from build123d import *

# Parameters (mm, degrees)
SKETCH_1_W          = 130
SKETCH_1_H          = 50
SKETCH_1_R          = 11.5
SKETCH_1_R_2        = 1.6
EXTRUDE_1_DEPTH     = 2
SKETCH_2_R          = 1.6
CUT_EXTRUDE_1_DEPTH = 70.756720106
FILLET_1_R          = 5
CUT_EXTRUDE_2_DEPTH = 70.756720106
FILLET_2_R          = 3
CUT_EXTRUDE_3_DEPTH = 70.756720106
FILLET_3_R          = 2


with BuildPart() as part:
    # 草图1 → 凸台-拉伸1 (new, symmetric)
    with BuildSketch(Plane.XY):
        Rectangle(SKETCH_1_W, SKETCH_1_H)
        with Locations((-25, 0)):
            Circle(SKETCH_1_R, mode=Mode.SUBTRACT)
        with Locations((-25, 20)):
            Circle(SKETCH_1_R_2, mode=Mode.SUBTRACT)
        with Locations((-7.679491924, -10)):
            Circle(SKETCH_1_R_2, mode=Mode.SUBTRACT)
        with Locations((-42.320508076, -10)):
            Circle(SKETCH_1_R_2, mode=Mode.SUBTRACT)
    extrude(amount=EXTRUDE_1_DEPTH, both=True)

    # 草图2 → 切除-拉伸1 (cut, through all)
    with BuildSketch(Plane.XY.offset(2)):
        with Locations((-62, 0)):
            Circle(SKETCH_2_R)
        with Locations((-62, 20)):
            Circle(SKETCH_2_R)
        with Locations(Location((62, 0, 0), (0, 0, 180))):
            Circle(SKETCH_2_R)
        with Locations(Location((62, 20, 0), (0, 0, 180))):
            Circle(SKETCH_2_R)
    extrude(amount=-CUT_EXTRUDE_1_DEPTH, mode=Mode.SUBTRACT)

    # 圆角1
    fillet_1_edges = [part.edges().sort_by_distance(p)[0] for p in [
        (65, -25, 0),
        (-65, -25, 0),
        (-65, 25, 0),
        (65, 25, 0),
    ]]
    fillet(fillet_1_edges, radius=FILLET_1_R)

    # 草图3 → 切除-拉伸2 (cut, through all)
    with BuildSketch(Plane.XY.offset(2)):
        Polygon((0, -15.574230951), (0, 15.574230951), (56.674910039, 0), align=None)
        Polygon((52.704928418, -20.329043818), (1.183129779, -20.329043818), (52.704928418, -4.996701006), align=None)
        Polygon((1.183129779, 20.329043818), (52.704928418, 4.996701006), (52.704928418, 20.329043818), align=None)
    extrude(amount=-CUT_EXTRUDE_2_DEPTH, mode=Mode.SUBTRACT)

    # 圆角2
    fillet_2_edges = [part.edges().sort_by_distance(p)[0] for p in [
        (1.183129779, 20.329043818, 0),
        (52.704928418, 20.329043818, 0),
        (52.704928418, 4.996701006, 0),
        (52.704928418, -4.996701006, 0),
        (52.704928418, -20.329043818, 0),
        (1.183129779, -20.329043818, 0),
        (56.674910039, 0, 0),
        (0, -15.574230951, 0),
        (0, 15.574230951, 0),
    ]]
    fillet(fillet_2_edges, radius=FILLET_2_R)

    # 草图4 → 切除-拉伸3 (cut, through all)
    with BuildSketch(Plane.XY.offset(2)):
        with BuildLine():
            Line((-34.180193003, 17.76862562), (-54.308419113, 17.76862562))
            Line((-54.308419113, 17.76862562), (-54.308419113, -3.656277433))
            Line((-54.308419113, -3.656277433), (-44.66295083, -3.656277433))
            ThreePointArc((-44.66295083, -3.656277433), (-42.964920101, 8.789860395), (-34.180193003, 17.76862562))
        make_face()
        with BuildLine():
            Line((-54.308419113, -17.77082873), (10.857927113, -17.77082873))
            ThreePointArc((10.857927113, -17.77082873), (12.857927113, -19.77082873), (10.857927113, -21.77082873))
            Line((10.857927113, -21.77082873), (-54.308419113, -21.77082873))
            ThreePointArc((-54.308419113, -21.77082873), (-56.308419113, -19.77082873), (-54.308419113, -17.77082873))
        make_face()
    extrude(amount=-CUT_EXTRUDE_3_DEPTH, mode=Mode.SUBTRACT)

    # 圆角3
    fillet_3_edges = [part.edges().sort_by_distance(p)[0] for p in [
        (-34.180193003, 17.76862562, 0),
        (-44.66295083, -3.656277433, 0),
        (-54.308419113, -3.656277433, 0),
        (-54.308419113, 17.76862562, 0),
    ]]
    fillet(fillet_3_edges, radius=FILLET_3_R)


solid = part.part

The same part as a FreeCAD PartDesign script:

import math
import FreeCAD as App
import Part
import Sketcher

V = App.Vector
Q = App.Units.Quantity


def edges_at(feature, points):
    """Names of the edges that pass closest to the given points."""
    edges = feature.Shape.Edges
    near = lambda p: min(range(len(edges)), key=lambda i: edges[i].distToShape(Part.Vertex(*p))[0])
    return sorted({f"Edge{near(p) + 1}" for p in points})


def add_polygon(sketch, points):
    """Adds a closed chain of lines whose ends are joined by coincident constraints."""
    first, n = sketch.GeometryCount, len(points)
    for a, b in zip(points, points[1:] + points[:1]):
        sketch.addGeometry(Part.LineSegment(App.Vector(*a, 0), App.Vector(*b, 0)), False)
    for i in range(n):
        sketch.addConstraint(Sketcher.Constraint("Coincident", first + i, 2, first + (i + 1) % n, 1))

doc = App.newDocument("Part")
body = doc.addObject("PartDesign::Body", "Body")

# Sketch on XY plane
sketch1 = body.newObject("Sketcher::SketchObject", "Sketch")
sketch1.AttachmentSupport = (doc.getObject("XY_Plane"), [""])
sketch1.MapMode = "FlatFace"
add_polygon(sketch1, [(-65, 25), (-65, -25), (65, -25), (65, 25)])  # lines 0-3
sketch1.addGeometry(Part.Circle(V(-42.320508, -10, 0), V(0, 0, 1), 1.6), False)  # 4
sketch1.addGeometry(Part.Circle(V(-7.679492, -10, 0), V(0, 0, 1), 1.6), False)  # 5
sketch1.addGeometry(Part.Circle(V(-25, 0, 0), V(0, 0, 1), 11.5), False)  # 6
sketch1.addGeometry(Part.Circle(V(-25, 20, 0), V(0, 0, 1), 1.6), False)  # 7
sketch1.addConstraint([
    Sketcher.Constraint("Vertical", 0),
    Sketcher.Constraint("Horizontal", 1),
    Sketcher.Constraint("Vertical", 2),
    Sketcher.Constraint("Horizontal", 3),
    Sketcher.Constraint("Equal", 4, 5),
    Sketcher.Constraint("Equal", 5, 7),
    Sketcher.Constraint("Symmetric", 0, 2, 2, 2, -1, 1),
    Sketcher.Constraint("PointOnObject", 6, 3, -1),
    Sketcher.Constraint("Horizontal", 4, 3, 5, 3),
    Sketcher.Constraint("Vertical", 6, 3, 7, 3),
    Sketcher.Constraint("Diameter", 6, Q("23 mm")),
    Sketcher.Constraint("Diameter", 4, Q("3.2 mm")),
    Sketcher.Constraint("DistanceX", 1, 1, 1, 2, Q("130 mm")),
    Sketcher.Constraint("DistanceY", 0, 2, 0, 1, Q("50 mm")),
    Sketcher.Constraint("DistanceY", 4, 3, -1, 1, Q("10 mm")),
    Sketcher.Constraint("DistanceX", 6, 3, -1, 1, Q("25 mm")),
    Sketcher.Constraint("DistanceY", -1, 1, 7, 3, Q("20 mm")),
    Sketcher.Constraint("DistanceX", 4, 3, -1, 1, Q("42.320508 mm")),
    Sketcher.Constraint("DistanceX", 5, 3, -1, 1, Q("7.679492 mm")),
])
pad1 = body.newObject("PartDesign::Pad", "Pad")
pad1.Profile = sketch1
pad1.Length = 4
pad1.Midplane = True

# Sketch on XY plane
sketch2 = body.newObject("Sketcher::SketchObject", "Sketch001")
sketch2.AttachmentSupport = (doc.getObject("XY_Plane"), [""])
sketch2.MapMode = "FlatFace"
sketch2.AttachmentOffset = App.Placement(V(0, 0, 2), App.Rotation())
sketch2.addGeometry([
    Part.Circle(V(-62, 0, 0), V(0, 0, 1), 1.6),
    Part.Circle(V(-62, 20, 0), V(0, 0, 1), 1.6),
    Part.Circle(V(62, 0, 0), V(0, 0, 1), 1.6),
    Part.Circle(V(62, 20, 0), V(0, 0, 1), 1.6),
], False)
sketch2.addConstraint([
    Sketcher.Constraint("Equal", 0, 1),
    Sketcher.Constraint("Equal", 1, 2),
    Sketcher.Constraint("Equal", 2, 3),
    Sketcher.Constraint("Symmetric", 0, 3, 2, 3, -1, 1),
    Sketcher.Constraint("Symmetric", 1, 3, 3, 3, -2),
    Sketcher.Constraint("PointOnObject", 0, 3, -1),
    Sketcher.Constraint("Vertical", 0, 3, 1, 3),
    Sketcher.Constraint("Diameter", 0, Q("3.2 mm")),
    Sketcher.Constraint("DistanceX", 0, 3, -1, 1, Q("62 mm")),
    Sketcher.Constraint("DistanceY", -1, 1, 1, 3, Q("20 mm")),
])
pocket1 = body.newObject("PartDesign::Pocket", "Pocket")
pocket1.Profile = sketch2
pocket1.Type = "ThroughAll"
doc.recompute()

fillet = body.newObject("PartDesign::Fillet", "Fillet")
fillet.Base = (pocket1, edges_at(pocket1, [
    (65, -25, 0),
    (-65, -25, 0),
    (-65, 25, 0),
    (65, 25, 0),
]))
fillet.Radius = 5

# Sketch on XY plane
sketch3 = body.newObject("Sketcher::SketchObject", "Sketch002")
sketch3.AttachmentSupport = (doc.getObject("XY_Plane"), [""])
sketch3.MapMode = "FlatFace"
sketch3.AttachmentOffset = App.Placement(V(0, 0, 2), App.Rotation())
add_polygon(sketch3, [(0, 15.574231), (0, -15.574231), (56.67491, 0)])  # lines 0-2
add_polygon(sketch3, [(1.18313, -20.329044), (52.704928, -20.329044), (52.704928, -4.996701)])  # lines 3-5
add_polygon(sketch3, [(1.18313, 20.329044), (52.704928, 4.996701), (52.704928, 20.329044)])  # lines 6-8
sketch3.addConstraint([
    Sketcher.Constraint("Vertical", 0),
    Sketcher.Constraint("Horizontal", 3),
    Sketcher.Constraint("Vertical", 4),
    Sketcher.Constraint("Vertical", 7),
    Sketcher.Constraint("Horizontal", 8),
    Sketcher.Constraint("Symmetric", 0, 2, 2, 2, -1, 1),
    Sketcher.Constraint("Symmetric", 4, 2, 6, 2, -1),
    Sketcher.Constraint("Symmetric", 5, 2, 8, 2, -1),
    Sketcher.Constraint("PointOnObject", 1, 2, -1),
    Sketcher.Constraint("DistanceX", 3, 1, 3, 2, Q("51.521799 mm")),
    Sketcher.Constraint("DistanceY", 0, 2, 0, 1, Q("31.148462 mm")),
    Sketcher.Constraint("DistanceY", 4, 2, -1, 1, Q("4.996701 mm")),
    Sketcher.Constraint("Distance", 5, Q("53.754781 mm")),
    Sketcher.Constraint("DistanceX", -1, 1, 1, 2, Q("56.67491 mm")),
    Sketcher.Constraint("DistanceX", -1, 1, 3, 2, Q("52.704928 mm")),
])
pocket2 = body.newObject("PartDesign::Pocket", "Pocket001")
pocket2.Profile = sketch3
pocket2.Type = "ThroughAll"
doc.recompute()

fillet2 = body.newObject("PartDesign::Fillet", "Fillet001")
fillet2.Base = (pocket2, edges_at(pocket2, [
    (1.183, 20.329, 0),
    (52.705, 20.329, 0),
    (52.705, 4.997, 0),
    (52.705, -4.997, 0),
    (52.705, -20.329, 0),
    (1.183, -20.329, 0),
    (56.675, 0, 0),
    (0, -15.574, 0),
    (0, 15.574, 0),
]))
fillet2.Radius = 3

# Sketch on XY plane
sketch4 = body.newObject("Sketcher::SketchObject", "Sketch003")
sketch4.AttachmentSupport = (doc.getObject("XY_Plane"), [""])
sketch4.MapMode = "FlatFace"
sketch4.AttachmentOffset = App.Placement(V(0, 0, 2), App.Rotation())
sketch4.addGeometry([
    Part.LineSegment(V(-34.180193, 17.768626, 0), V(-54.308419, 17.768626, 0)),  # 0
    Part.LineSegment(V(-54.308419, 17.768626, 0), V(-54.308419, -3.656277, 0)),  # 1
    Part.LineSegment(V(-54.308419, -3.656277, 0), V(-44.662951, -3.656277, 0)),  # 2
    Part.ArcOfCircle(Part.Circle(V(-25, 0, 0), V(0, 0, 1), 20), math.radians(117.32322), math.radians(190.533703)),  # 3
    Part.LineSegment(V(10.857927, -17.770829, 0), V(-54.308419, -17.770829, 0)),  # 4
    Part.ArcOfCircle(Part.Circle(V(-54.308419, -19.770829, 0), V(0, 0, 1), 2), math.radians(90), math.radians(270)),  # 5
    Part.LineSegment(V(-54.308419, -21.770829, 0), V(10.857927, -21.770829, 0)),  # 6
    Part.ArcOfCircle(Part.Circle(V(10.857927, -19.770829, 0), V(0, 0, 1), 2), math.radians(-90), math.radians(90)),  # 7
], False)
sketch4.addConstraint([
    Sketcher.Constraint("Coincident", 0, 2, 1, 1),
    Sketcher.Constraint("Coincident", 1, 2, 2, 1),
    Sketcher.Constraint("Coincident", 2, 2, 3, 2),
    Sketcher.Constraint("Coincident", 3, 1, 0, 1),
    Sketcher.Constraint("Tangent", 4, 2, 5, 1),
    Sketcher.Constraint("Tangent", 5, 2, 6, 1),
    Sketcher.Constraint("Tangent", 6, 2, 7, 1),
    Sketcher.Constraint("Tangent", 7, 2, 4, 1),
    Sketcher.Constraint("Horizontal", 0),
    Sketcher.Constraint("Vertical", 1),
    Sketcher.Constraint("Horizontal", 2),
    Sketcher.Constraint("Horizontal", 4),
    Sketcher.Constraint("Horizontal", 6),
    Sketcher.Constraint("PointOnObject", 3, 3, -1),
    Sketcher.Constraint("Vertical", 5, 3, 0, 2),
    Sketcher.Constraint("Radius", 3, Q("20 mm")),
    Sketcher.Constraint("Radius", 5, Q("2 mm")),
    Sketcher.Constraint("DistanceX", 3, 3, -1, 1, Q("25 mm")),
    Sketcher.Constraint("DistanceX", 2, 1, 2, 2, Q("9.645468 mm")),
    Sketcher.Constraint("DistanceX", 0, 2, 0, 1, Q("20.128226 mm")),
    Sketcher.Constraint("DistanceX", 4, 2, 4, 1, Q("65.166346 mm")),
    Sketcher.Constraint("DistanceY", 1, 2, 1, 1, Q("21.424903 mm")),
    Sketcher.Constraint("DistanceY", 5, 3, -1, 1, Q("19.770829 mm")),
])
pocket3 = body.newObject("PartDesign::Pocket", "Pocket002")
pocket3.Profile = sketch4
pocket3.Type = "ThroughAll"
doc.recompute()

fillet3 = body.newObject("PartDesign::Fillet", "Fillet002")
fillet3.Base = (pocket3, edges_at(pocket3, [
    (-34.18, 17.769, 0),
    (-44.663, -3.656, 0),
    (-54.308, -3.656, 0),
    (-54.308, 17.769, 0),
]))
fillet3.Radius = 2

doc.recompute()
